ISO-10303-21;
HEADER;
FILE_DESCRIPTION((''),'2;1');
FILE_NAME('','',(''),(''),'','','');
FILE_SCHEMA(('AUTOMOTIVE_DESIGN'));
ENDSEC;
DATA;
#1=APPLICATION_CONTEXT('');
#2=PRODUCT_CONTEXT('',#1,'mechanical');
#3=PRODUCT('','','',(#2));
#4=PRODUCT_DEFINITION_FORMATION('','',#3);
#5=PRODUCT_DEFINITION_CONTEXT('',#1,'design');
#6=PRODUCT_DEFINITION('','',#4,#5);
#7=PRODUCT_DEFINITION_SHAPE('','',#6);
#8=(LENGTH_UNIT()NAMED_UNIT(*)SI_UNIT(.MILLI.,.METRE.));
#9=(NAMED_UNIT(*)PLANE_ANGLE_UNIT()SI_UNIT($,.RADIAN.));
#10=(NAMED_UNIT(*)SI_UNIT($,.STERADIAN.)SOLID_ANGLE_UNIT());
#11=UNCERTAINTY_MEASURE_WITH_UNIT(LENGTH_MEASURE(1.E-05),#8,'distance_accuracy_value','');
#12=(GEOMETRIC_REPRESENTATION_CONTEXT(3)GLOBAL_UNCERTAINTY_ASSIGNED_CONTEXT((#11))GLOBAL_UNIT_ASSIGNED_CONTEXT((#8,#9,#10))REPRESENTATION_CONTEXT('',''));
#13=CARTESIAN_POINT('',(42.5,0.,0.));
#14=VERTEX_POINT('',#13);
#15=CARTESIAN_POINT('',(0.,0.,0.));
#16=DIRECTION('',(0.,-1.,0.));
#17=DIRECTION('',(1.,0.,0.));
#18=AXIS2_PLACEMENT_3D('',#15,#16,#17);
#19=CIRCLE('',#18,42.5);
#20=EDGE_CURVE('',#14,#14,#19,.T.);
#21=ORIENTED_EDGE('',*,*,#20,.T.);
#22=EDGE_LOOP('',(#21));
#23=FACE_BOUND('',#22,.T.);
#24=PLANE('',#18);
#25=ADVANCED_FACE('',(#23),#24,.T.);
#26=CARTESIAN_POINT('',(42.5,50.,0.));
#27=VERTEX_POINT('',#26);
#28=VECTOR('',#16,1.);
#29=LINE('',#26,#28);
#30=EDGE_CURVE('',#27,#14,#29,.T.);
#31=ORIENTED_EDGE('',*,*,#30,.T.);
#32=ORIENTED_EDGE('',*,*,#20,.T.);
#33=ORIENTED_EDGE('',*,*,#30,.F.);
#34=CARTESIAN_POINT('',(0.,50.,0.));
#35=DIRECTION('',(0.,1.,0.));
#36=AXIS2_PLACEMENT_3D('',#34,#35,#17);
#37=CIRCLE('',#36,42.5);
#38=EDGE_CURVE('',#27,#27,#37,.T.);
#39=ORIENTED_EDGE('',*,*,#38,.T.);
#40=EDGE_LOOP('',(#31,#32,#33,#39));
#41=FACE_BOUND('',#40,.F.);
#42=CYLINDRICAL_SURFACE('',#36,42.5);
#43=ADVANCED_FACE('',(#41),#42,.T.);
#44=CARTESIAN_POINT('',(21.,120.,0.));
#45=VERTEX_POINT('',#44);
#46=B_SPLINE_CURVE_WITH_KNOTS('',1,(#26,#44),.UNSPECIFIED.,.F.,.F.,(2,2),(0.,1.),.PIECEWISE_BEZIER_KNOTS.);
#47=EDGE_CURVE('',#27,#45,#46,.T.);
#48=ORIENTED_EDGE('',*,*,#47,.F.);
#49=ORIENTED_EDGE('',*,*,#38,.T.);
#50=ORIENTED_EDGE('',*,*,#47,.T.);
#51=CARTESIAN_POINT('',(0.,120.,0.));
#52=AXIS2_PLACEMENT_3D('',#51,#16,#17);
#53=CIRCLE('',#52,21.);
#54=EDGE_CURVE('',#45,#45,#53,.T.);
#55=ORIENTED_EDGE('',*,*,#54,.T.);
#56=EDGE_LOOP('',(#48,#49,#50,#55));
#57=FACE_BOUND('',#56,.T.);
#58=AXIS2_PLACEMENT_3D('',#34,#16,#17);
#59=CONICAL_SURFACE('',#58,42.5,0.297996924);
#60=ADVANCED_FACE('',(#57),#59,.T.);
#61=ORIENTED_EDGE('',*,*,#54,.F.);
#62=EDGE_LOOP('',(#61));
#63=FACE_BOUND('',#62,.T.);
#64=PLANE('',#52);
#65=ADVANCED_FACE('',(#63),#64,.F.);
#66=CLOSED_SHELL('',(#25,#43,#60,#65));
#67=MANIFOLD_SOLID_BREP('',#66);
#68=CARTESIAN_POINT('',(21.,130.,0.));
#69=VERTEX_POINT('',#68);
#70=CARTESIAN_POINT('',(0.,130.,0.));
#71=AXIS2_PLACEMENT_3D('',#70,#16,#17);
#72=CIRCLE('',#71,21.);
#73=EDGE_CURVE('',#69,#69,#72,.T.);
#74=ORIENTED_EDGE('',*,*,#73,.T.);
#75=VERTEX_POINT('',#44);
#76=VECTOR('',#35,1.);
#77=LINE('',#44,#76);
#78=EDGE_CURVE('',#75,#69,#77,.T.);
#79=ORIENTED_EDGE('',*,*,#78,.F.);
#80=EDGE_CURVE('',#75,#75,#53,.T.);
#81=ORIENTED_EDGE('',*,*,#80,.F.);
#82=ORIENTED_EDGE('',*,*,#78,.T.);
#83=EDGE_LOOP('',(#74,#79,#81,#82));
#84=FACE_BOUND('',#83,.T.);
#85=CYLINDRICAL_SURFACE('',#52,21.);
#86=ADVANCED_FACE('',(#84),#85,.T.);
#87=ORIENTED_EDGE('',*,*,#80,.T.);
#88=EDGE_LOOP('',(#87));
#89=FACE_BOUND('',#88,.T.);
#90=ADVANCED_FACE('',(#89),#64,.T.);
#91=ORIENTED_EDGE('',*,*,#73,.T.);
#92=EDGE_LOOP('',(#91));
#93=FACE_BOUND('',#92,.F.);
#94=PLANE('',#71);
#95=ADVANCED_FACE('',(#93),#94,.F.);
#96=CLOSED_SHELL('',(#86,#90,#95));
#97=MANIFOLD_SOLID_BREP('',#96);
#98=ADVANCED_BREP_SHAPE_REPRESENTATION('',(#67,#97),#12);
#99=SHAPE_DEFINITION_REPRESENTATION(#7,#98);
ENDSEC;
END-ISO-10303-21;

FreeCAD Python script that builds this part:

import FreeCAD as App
import Part
import Sketcher
from FreeCAD import Vector

doc = App.newDocument("Part")
body = doc.addObject("PartDesign::Body", "Body")

sketch1 = doc.addObject("Sketcher::SketchObject", "Sketch")
body.addObject(sketch1)
sketch1.AttachmentSupport = (doc.XZ_Plane, [""])
sketch1.MapMode = "FlatFace"
sketch1.AttachmentOffset = App.Placement(Vector(0, 0, -120), App.Rotation())
sketch1.addGeometry(Part.Circle(Vector(0, 0, 0), Vector(0, 0, 1), 21), False)
sketch1.addConstraint(Sketcher.Constraint("Coincident", 0, 3, -1, 1))
sketch1.addConstraint(Sketcher.Constraint("Diameter", 0, 42.0))
pad1 = doc.addObject("PartDesign::Pad", "Pad")
body.addObject(pad1)
pad1.Profile = sketch1
pad1.Length = 10
pad1.Reversed = True
body2 = doc.addObject("PartDesign::Body", "Body001")

sketch2 = doc.addObject("Sketcher::SketchObject", "Sketch001")
body2.addObject(sketch2)
sketch2.AttachmentSupport = (doc.getObject("XZ_Plane001"), [""])
sketch2.MapMode = "FlatFace"
sketch2.addGeometry(Part.Circle(Vector(0, 0, 0), Vector(0, 0, 1), 42), False)
sketch2.addConstraint(Sketcher.Constraint("Coincident", 0, 3, -1, 1))
sketch2.addConstraint(Sketcher.Constraint("Diameter", 0, 85.0))
pad2 = doc.addObject("PartDesign::Pad", "Pad001")
body2.addObject(pad2)
pad2.Profile = sketch2
pad2.Length = 50
pad2.Reversed = True
body3 = doc.addObject("PartDesign::Body", "Body002")

sketch3 = doc.addObject("Sketcher::SketchObject", "Sketch002")
body3.addObject(sketch3)
sketch3.AttachmentSupport = (doc.getObject("XZ_Plane002"), [""])
sketch3.MapMode = "FlatFace"
sketch3.AttachmentOffset = App.Placement(Vector(0, 0, -50), App.Rotation())
sketch3.addGeometry(Part.Circle(Vector(0, 0, 0), Vector(0, 0, 1), 42), False)
sketch3.addConstraint(Sketcher.Constraint("Coincident", 0, 3, -1, 1))
sketch3.addConstraint(Sketcher.Constraint("Diameter", 0, 85.0))

sketch4 = doc.addObject("Sketcher::SketchObject", "Sketch003")
body3.addObject(sketch4)
sketch4.AttachmentSupport = (doc.getObject("XZ_Plane002"), [""])
sketch4.MapMode = "FlatFace"
sketch4.AttachmentOffset = App.Placement(Vector(0, 0, -120), App.Rotation())
sketch4.addGeometry(Part.Circle(Vector(0, 0, 0), Vector(0, 0, 1), 21), False)
sketch4.addConstraint(Sketcher.Constraint("Coincident", 0, 3, -1, 1))
sketch4.addConstraint(Sketcher.Constraint("Diameter", 0, 42.0))

additiveloft = doc.addObject("PartDesign::AdditiveLoft", "AdditiveLoft")
body3.addObject(additiveloft)
additiveloft.Profile = sketch3
additiveloft.Sections = [sketch4]

sketch5 = doc.addObject("Sketcher::SketchObject", "Sketch004")
body3.addObject(sketch5)
sketch5.AttachmentSupport = (doc.getObject("XZ_Plane002"), [""])
sketch5.MapMode = "FlatFace"
sketch5.AttachmentOffset = App.Placement(Vector(0, 0, -50), App.Rotation())
sketch5.addGeometry(Part.Circle(Vector(0, 0, 0), Vector(0, 0, 1), 42), False)
sketch5.addConstraint(Sketcher.Constraint("Coincident", 0, 3, -1, 1))
sketch5.addConstraint(Sketcher.Constraint("Diameter", 0, 85.0))
pad3 = doc.addObject("PartDesign::Pad", "Pad002")
body3.addObject(pad3)
pad3.Profile = sketch5
pad3.Length = 50
body2.Visibility = False

doc.recompute()
